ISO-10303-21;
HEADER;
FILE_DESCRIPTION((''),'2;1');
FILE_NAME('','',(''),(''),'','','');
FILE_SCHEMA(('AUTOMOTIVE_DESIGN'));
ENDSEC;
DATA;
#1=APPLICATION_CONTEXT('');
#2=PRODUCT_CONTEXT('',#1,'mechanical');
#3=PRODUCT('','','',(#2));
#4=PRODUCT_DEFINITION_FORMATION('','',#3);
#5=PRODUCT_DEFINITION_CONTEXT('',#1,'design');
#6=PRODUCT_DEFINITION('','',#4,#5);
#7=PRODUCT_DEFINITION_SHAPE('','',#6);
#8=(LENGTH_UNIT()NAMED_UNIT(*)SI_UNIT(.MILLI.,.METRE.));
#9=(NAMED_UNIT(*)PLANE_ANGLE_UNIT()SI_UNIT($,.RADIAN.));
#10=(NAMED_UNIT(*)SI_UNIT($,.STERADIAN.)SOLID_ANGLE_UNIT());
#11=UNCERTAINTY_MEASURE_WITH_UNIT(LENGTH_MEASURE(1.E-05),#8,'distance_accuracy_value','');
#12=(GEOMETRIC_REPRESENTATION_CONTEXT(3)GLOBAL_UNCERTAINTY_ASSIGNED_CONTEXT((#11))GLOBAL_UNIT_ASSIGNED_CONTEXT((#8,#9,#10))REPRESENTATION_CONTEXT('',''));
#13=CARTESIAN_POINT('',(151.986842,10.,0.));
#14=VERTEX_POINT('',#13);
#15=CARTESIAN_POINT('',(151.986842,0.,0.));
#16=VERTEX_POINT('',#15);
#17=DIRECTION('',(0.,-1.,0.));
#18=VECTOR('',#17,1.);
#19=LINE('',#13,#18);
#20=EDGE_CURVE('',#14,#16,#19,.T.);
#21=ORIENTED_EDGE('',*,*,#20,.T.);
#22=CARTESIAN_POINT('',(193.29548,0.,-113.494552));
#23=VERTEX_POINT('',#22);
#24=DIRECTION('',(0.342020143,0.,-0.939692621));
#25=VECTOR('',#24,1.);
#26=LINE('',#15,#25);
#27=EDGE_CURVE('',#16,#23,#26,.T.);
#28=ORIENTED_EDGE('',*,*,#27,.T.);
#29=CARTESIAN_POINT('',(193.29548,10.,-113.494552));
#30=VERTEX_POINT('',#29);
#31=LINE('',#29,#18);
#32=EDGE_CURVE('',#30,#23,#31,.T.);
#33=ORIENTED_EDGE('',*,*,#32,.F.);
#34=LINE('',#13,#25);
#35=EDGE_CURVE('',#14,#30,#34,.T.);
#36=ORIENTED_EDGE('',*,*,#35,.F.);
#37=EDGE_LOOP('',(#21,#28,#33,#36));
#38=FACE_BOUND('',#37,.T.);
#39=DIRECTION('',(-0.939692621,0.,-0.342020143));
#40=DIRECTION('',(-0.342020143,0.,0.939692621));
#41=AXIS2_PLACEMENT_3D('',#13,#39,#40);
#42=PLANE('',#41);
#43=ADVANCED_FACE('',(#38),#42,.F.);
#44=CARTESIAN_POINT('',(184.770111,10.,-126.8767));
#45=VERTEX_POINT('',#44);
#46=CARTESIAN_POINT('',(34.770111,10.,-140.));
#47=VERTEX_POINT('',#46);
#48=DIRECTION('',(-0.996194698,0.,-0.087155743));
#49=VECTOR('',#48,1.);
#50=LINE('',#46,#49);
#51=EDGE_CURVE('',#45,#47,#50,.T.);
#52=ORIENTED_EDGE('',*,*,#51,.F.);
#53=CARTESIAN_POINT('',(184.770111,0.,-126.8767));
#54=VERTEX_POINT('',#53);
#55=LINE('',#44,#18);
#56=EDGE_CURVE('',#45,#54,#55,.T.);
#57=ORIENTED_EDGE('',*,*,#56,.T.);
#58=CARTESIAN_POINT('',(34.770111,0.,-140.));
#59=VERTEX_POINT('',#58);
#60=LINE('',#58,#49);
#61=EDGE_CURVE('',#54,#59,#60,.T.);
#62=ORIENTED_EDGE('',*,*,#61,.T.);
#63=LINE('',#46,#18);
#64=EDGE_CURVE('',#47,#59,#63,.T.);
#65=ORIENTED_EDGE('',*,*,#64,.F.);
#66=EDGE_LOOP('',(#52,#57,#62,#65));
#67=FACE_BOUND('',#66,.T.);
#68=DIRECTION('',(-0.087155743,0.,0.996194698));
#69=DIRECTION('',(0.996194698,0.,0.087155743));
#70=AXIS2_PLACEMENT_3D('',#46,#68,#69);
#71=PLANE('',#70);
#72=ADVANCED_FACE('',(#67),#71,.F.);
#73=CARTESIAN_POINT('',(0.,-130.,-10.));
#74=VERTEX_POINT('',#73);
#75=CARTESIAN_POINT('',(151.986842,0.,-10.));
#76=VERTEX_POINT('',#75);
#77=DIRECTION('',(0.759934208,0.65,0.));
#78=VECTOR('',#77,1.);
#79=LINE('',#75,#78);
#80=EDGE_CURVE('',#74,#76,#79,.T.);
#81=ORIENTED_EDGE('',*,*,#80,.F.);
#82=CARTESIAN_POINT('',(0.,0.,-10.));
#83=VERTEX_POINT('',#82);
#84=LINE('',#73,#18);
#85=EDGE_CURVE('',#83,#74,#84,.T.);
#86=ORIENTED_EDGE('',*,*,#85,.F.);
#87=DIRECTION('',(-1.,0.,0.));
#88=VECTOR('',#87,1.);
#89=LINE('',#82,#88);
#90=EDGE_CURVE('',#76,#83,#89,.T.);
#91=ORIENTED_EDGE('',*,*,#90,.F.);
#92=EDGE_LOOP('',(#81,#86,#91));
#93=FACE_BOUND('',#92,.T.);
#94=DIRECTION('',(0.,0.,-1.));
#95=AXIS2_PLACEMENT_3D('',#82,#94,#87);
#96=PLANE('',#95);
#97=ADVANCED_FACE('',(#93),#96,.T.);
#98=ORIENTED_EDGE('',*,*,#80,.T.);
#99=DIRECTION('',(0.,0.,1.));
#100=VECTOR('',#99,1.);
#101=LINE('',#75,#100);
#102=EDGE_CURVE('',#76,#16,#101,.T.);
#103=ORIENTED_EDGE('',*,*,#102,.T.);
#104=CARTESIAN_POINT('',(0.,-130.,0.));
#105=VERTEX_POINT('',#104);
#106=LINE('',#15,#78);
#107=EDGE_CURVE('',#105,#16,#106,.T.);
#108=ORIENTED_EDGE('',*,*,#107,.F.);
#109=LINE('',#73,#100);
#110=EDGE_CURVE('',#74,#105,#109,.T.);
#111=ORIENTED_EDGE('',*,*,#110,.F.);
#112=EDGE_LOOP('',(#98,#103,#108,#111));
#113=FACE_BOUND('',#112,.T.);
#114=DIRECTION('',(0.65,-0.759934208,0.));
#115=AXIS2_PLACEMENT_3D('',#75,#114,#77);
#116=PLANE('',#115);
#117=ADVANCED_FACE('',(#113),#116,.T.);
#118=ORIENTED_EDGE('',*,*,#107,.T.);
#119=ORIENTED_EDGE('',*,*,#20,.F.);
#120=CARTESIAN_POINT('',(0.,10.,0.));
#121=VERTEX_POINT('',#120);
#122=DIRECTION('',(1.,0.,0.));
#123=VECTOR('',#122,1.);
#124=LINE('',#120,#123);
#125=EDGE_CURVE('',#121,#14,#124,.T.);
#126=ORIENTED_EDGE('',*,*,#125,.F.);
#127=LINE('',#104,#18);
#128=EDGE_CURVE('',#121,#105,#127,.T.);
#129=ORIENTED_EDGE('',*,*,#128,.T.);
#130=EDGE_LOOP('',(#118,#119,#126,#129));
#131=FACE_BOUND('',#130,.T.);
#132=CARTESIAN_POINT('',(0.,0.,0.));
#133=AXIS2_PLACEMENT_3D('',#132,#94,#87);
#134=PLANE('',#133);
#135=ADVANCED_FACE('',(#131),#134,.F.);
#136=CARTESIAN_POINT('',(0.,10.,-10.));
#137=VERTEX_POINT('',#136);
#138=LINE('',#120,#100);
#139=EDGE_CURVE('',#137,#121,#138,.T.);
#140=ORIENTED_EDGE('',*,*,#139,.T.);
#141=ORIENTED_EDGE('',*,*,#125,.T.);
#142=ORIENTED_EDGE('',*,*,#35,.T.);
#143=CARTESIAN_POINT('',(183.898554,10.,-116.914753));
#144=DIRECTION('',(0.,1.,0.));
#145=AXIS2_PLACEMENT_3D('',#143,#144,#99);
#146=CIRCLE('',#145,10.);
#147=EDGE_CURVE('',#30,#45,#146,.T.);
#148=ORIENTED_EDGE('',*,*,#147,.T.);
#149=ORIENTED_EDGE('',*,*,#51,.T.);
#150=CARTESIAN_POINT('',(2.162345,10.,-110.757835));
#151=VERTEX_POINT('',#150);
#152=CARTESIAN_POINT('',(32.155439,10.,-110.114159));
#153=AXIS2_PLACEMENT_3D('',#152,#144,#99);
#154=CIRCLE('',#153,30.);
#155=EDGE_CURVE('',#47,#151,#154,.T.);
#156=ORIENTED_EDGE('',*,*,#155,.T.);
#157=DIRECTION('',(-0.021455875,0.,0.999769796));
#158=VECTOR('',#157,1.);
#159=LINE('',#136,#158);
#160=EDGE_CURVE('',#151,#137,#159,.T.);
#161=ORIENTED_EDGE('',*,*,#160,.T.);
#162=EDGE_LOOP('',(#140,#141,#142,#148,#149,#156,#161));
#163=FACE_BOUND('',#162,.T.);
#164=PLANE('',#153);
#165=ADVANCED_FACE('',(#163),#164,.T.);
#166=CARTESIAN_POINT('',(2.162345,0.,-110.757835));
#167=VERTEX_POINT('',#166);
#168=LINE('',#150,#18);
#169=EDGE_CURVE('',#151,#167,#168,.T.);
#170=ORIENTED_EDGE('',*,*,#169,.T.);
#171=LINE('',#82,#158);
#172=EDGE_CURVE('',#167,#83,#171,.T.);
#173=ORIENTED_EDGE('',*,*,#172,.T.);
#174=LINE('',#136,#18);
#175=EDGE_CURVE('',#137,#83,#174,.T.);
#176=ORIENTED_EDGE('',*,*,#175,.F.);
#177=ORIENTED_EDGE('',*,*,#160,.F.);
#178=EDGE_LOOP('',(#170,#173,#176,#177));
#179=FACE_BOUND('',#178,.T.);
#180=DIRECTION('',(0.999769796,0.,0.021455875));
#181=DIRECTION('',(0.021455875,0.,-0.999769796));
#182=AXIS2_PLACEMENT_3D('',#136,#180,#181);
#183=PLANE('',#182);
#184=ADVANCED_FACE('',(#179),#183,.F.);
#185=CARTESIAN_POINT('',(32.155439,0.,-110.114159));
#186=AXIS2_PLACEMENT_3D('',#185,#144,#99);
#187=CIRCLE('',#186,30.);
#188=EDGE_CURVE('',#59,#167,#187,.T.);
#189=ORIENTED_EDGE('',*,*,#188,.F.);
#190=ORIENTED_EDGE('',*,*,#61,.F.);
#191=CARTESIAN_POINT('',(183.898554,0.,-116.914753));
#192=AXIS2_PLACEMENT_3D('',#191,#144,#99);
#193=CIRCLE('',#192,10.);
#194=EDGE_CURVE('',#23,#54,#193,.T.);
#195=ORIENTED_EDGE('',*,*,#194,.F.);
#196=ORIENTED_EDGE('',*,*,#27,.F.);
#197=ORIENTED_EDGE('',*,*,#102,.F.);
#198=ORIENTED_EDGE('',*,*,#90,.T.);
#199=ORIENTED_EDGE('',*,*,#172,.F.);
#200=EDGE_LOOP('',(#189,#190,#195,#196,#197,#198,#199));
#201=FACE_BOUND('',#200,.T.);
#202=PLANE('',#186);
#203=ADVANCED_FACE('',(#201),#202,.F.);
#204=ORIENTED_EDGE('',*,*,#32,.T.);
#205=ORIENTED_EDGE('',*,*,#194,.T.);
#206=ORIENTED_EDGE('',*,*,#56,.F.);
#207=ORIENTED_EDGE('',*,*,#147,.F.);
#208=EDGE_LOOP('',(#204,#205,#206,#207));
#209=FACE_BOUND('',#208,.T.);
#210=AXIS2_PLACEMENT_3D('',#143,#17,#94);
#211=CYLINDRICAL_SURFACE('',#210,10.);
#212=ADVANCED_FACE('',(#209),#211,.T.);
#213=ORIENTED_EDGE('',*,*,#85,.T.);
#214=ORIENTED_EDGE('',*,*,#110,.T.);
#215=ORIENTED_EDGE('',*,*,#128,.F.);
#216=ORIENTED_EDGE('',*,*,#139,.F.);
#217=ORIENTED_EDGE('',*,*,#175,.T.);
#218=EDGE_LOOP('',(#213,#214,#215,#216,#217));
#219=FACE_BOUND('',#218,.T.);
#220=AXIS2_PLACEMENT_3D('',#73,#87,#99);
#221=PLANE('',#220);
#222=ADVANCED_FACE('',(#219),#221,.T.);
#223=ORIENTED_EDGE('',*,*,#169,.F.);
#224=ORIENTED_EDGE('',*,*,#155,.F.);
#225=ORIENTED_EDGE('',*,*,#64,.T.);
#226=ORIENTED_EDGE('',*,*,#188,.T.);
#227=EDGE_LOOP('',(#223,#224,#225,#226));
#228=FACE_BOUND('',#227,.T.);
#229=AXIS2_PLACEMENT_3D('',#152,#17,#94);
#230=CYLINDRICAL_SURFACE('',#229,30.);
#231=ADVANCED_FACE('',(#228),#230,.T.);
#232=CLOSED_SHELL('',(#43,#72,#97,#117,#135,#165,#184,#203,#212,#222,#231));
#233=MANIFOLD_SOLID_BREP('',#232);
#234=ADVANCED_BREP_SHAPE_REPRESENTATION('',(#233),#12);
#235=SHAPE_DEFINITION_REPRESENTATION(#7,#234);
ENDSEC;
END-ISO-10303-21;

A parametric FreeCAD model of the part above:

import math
import FreeCAD as App
import Part
import Sketcher
from FreeCAD import Vector
Q = App.Units.Quantity

doc = App.newDocument("Part")
body = doc.addObject("PartDesign::Body", "Body")

sketch1 = body.newObject("Sketcher::SketchObject", "Sketch")
sketch1.AttachmentSupport = (doc.getObject("XY_Plane"), [""])
sketch1.MapMode = "FlatFace"
sketch1.addGeometry([
    Part.LineSegment(Vector(152, 0, 0), Vector(0, 0, 0)),
    Part.LineSegment(Vector(0, 0, 0), Vector(0, -130, 0)),
    Part.LineSegment(Vector(0, -130, 0), Vector(152, 0, 0)),
], False)
sketch1.addConstraint([
    Sketcher.Constraint("Coincident", 0, 2, 1, 1),
    Sketcher.Constraint("Coincident", 1, 2, 2, 1),
    Sketcher.Constraint("Coincident", 2, 2, 0, 1),
    Sketcher.Constraint("Horizontal", 0),
    Sketcher.Constraint("Vertical", 1),
    Sketcher.Constraint("Coincident", 0, 2, -1, 1),
    Sketcher.Constraint("DistanceY", 1, 2, 1, 1, Q("130 mm")),
    Sketcher.Constraint("Distance", 2, Q("200 mm")),
])
pad1 = body.newObject("PartDesign::Pad", "Pad")
pad1.Profile = sketch1
pad1.Length = 10
pad1.Reversed = True

sketch2 = body.newObject("Sketcher::SketchObject", "Sketch001")
sketch2.AttachmentSupport = (doc.getObject("XZ_Plane"), [""])
sketch2.MapMode = "FlatFace"
sketch2.addGeometry([
    Part.LineSegment(Vector(0, 0, 0), Vector(152, 0, 0)),
    Part.LineSegment(Vector(152, 0, 0), Vector(193, -113, 0)),
    Part.ArcOfCircle(Part.Circle(Vector(184, -117, 0), Vector(0, 0, 1), 10), math.radians(-85), math.radians(20)),
    Part.LineSegment(Vector(185, -127, 0), Vector(35, -140, 0)),
    Part.ArcOfCircle(Part.Circle(Vector(32, -110, 0), Vector(0, 0, 1), 30), math.radians(-179), math.radians(-85)),
    Part.LineSegment(Vector(2, -111, 0), Vector(0, -10, 0)),
    Part.LineSegment(Vector(0, -10, 0), Vector(0, 0, 0)),
], False)
sketch2.addConstraint([
    Sketcher.Constraint("Coincident", 0, 2, 1, 1),
    Sketcher.Constraint("Tangent", 1, 2, 2, 2),
    Sketcher.Constraint("Tangent", 2, 1, 3, 1),
    Sketcher.Constraint("Tangent", 3, 2, 4, 2),
    Sketcher.Constraint("Tangent", 4, 1, 5, 1),
    Sketcher.Constraint("Coincident", 5, 2, 6, 1),
    Sketcher.Constraint("Coincident", 6, 2, 0, 1),
    Sketcher.Constraint("Horizontal", 0),
    Sketcher.Constraint("Vertical", 6),
    Sketcher.Constraint("Coincident", 6, 2, -1, 1),
    Sketcher.Constraint("Radius", 2, Q("10 mm")),
    Sketcher.Constraint("Radius", 4, Q("30 mm")),
    Sketcher.Constraint("DistanceY", 6, 1, 6, 2, Q("10 mm")),
    Sketcher.Constraint("Angle", 1, Q("-70 deg")),
    Sketcher.Constraint("Angle", 3, Q("-175 deg")),
    Sketcher.Constraint("DistanceY", 3, 2, -1, 1, Q("140 mm")),
    Sketcher.Constraint("DistanceX", 3, 2, 2, 1, Q("150 mm")),
    Sketcher.Constraint("DistanceX", 0, 1, 0, 2, Q("151.986842 mm")),
])
pad2 = body.newObject("PartDesign::Pad", "Pad001")
pad2.Profile = sketch2
pad2.Length = 10
pad2.Reversed = True

doc.recompute()
